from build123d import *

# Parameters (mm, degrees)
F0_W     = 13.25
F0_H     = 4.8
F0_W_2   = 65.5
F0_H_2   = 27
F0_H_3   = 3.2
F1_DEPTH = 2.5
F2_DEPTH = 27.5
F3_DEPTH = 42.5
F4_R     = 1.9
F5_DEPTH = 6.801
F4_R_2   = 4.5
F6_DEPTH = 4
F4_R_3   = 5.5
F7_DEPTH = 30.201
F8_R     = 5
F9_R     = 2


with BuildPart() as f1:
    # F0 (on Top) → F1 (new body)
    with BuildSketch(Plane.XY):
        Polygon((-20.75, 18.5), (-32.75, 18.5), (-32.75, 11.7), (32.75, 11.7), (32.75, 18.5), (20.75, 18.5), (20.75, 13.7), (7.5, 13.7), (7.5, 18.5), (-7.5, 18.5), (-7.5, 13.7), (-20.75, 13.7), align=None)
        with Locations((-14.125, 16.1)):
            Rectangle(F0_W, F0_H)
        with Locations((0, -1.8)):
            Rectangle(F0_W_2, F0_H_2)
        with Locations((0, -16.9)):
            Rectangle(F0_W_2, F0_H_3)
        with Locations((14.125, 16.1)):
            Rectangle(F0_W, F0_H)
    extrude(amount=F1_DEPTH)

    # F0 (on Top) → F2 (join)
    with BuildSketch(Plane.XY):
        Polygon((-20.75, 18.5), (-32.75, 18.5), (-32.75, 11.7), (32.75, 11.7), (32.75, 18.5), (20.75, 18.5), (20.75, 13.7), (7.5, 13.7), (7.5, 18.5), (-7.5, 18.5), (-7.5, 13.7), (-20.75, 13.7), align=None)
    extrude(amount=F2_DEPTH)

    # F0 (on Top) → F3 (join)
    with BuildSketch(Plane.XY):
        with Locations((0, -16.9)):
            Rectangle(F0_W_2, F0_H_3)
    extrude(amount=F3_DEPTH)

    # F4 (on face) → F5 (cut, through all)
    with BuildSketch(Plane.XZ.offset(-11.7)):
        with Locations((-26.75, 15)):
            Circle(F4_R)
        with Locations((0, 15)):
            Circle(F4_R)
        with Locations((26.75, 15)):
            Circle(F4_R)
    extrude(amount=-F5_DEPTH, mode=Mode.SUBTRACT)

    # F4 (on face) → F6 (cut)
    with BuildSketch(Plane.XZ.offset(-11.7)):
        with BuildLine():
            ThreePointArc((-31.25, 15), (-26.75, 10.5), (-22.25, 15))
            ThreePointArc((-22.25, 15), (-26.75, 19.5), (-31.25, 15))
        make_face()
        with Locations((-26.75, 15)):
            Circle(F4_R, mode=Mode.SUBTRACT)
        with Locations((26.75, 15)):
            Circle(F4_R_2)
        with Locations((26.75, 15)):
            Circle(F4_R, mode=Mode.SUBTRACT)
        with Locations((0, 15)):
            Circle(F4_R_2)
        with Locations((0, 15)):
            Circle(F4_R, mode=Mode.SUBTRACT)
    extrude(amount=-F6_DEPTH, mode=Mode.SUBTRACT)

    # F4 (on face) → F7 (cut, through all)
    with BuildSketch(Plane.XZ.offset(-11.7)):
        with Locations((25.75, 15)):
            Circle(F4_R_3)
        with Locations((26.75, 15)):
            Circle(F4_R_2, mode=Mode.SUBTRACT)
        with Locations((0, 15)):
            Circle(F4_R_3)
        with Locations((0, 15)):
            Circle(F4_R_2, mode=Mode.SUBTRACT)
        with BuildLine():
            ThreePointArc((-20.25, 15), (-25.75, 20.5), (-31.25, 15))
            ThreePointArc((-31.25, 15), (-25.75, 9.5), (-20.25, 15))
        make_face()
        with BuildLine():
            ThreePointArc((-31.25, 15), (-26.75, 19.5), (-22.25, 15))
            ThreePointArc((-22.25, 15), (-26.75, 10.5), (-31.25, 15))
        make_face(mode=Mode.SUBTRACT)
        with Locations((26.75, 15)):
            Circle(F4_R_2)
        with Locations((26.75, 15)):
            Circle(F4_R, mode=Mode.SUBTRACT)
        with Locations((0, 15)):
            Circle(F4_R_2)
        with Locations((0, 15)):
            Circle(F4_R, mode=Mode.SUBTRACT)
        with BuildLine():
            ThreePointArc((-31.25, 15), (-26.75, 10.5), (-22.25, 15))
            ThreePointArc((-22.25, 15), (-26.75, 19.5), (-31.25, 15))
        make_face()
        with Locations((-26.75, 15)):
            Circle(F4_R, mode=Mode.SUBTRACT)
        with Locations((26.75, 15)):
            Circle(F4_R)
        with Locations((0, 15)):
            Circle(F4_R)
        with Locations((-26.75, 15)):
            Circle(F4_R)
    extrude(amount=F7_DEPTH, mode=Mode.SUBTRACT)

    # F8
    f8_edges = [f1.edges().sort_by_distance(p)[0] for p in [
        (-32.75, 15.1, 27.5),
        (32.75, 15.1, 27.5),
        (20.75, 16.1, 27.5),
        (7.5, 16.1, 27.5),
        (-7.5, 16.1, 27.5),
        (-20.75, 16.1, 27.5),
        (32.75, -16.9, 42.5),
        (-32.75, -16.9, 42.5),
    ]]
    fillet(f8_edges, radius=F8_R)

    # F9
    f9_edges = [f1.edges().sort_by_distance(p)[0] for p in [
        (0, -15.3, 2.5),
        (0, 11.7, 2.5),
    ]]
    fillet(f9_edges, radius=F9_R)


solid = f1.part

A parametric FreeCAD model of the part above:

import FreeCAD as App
import Part
import Sketcher
from FreeCAD import Vector
Q = App.Units.Quantity


def edges_at(feature, points):
    """Names of the edges that pass closest to the given points."""
    edges = feature.Shape.Edges
    near = lambda p: min(range(len(edges)), key=lambda i: edges[i].distToShape(Part.Vertex(*p))[0])
    return sorted({f"Edge{near(p) + 1}" for p in points})

doc = App.newDocument("Part")
params = doc.addObject("Spreadsheet::Sheet", "Params")
for row, (alias, value) in enumerate([
    ("sketch1_height", "37 mm"),
    ("sketch1_width", "65.5 mm"),
    ("pad1_length", "2.5 mm"),
    ("sketch2_width", "12 mm"),
    ("sketch2_width2", "15 mm"),
    ("sketch2_width3", "65.5 mm"),
    ("sketch2_height", "6.8 mm"),
    ("sketch2_height2", "4.8 mm"),
    ("pad2_length", "27.5 mm"),
    ("sketch3_width", "65.5 mm"),
    ("sketch3_height", "3.2 mm"),
    ("pad3_length", "42.5 mm"),
    ("sketch4_diameter", "3.8 mm"),
    ("sketch5_diameter", "9 mm"),
    ("sketch5_diameter2", "3.8 mm"),
    ("pocket2_length", "4 mm"),
    ("sketch6_diameter", "11 mm"),
    ("fillet_radius", "5 mm"),
    ("fillet2_radius", "2 mm"),
], start=1):
    params.set(f"A{row}", alias)
    params.set(f"B{row}", "=" + value)
    params.setAlias(f"B{row}", alias)

body = doc.addObject("PartDesign::Body", "Body")

# Sketch on XY plane
sketch1 = body.newObject("Sketcher::SketchObject", "Sketch")
sketch1.AttachmentSupport = (doc.getObject("XY_Plane"), [""])
sketch1.MapMode = "FlatFace"
sketch1.addGeometry([
    Part.LineSegment(Vector(-33, 18, 0), Vector(-33, -18, 0)),
    Part.LineSegment(Vector(-33, -18, 0), Vector(33, -18, 0)),
    Part.LineSegment(Vector(33, -18, 0), Vector(33, 18, 0)),
    Part.LineSegment(Vector(33, 18, 0), Vector(-33, 18, 0)),
], False)
sketch1.addConstraint([
    Sketcher.Constraint("Coincident", 0, 2, 1, 1),
    Sketcher.Constraint("Coincident", 1, 2, 2, 1),
    Sketcher.Constraint("Coincident", 2, 2, 3, 1),
    Sketcher.Constraint("Coincident", 3, 2, 0, 1),
    Sketcher.Constraint("Vertical", 0),
    Sketcher.Constraint("Horizontal", 1),
    Sketcher.Constraint("Vertical", 2),
    Sketcher.Constraint("Horizontal", 3),
    Sketcher.Constraint("Symmetric", 0, 2, 2, 2, -1, 1),
    Sketcher.Constraint("DistanceY", 0, 2, 0, 1, Q("37 mm")),
    Sketcher.Constraint("DistanceX", 1, 1, 1, 2, Q("65.5 mm")),
])
sketch1.setExpression("Constraints[9]", "Params.sketch1_height")
sketch1.setExpression("Constraints[10]", "Params.sketch1_width")
pad1 = body.newObject("PartDesign::Pad", "Pad")
pad1.Profile = sketch1
pad1.setExpression("Length", "Params.pad1_length")

# Sketch on XY plane
sketch2 = body.newObject("Sketcher::SketchObject", "Sketch001")
sketch2.AttachmentSupport = (doc.getObject("XY_Plane"), [""])
sketch2.MapMode = "FlatFace"
sketch2.addGeometry([
    Part.LineSegment(Vector(-20.8, 18.5, 0), Vector(-32.8, 18.5, 0)),  # 0
    Part.LineSegment(Vector(-32.8, 18.5, 0), Vector(-32.8, 11.7, 0)),  # 1
    Part.LineSegment(Vector(-32.8, 11.7, 0), Vector(32.8, 11.7, 0)),  # 2
    Part.LineSegment(Vector(32.8, 11.7, 0), Vector(32.8, 18.5, 0)),  # 3
    Part.LineSegment(Vector(32.8, 18.5, 0), Vector(20.8, 18.5, 0)),  # 4
    Part.LineSegment(Vector(20.8, 18.5, 0), Vector(20.8, 13.7, 0)),  # 5
    Part.LineSegment(Vector(20.8, 13.7, 0), Vector(7.5, 13.7, 0)),  # 6
    Part.LineSegment(Vector(7.5, 13.7, 0), Vector(7.5, 18.5, 0)),  # 7
    Part.LineSegment(Vector(7.5, 18.5, 0), Vector(-7.5, 18.5, 0)),  # 8
    Part.LineSegment(Vector(-7.5, 18.5, 0), Vector(-7.5, 13.7, 0)),  # 9
    Part.LineSegment(Vector(-7.5, 13.7, 0), Vector(-20.8, 13.7, 0)),  # 10
    Part.LineSegment(Vector(-20.8, 13.7, 0), Vector(-20.8, 18.5, 0)),  # 11
], False)
sketch2.addConstraint([
    Sketcher.Constraint("Coincident", 0, 2, 1, 1),
    Sketcher.Constraint("Coincident", 1, 2, 2, 1),
    Sketcher.Constraint("Coincident", 2, 2, 3, 1),
    Sketcher.Constraint("Coincident", 3, 2, 4, 1),
    Sketcher.Constraint("Coincident", 4, 2, 5, 1),
    Sketcher.Constraint("Coincident", 5, 2, 6, 1),
    Sketcher.Constraint("Coincident", 6, 2, 7, 1),
    Sketcher.Constraint("Coincident", 7, 2, 8, 1),
    Sketcher.Constraint("Coincident", 8, 2, 9, 1),
    Sketcher.Constraint("Coincident", 9, 2, 10, 1),
    Sketcher.Constraint("Coincident", 10, 2, 11, 1),
    Sketcher.Constraint("Coincident", 11, 2, 0, 1),
    Sketcher.Constraint("Horizontal", 0),
    Sketcher.Constraint("Vertical", 1),
    Sketcher.Constraint("Horizontal", 2),
    Sketcher.Constraint("Vertical", 3),
    Sketcher.Constraint("Horizontal", 4),
    Sketcher.Constraint("Vertical", 5),
    Sketcher.Constraint("Horizontal", 6),
    Sketcher.Constraint("Vertical", 7),
    Sketcher.Constraint("Horizontal", 8),
    Sketcher.Constraint("Vertical", 9),
    Sketcher.Constraint("Horizontal", 10),
    Sketcher.Constraint("Vertical", 11),
    Sketcher.Constraint("Symmetric", 0, 2, 3, 2, -2),
    Sketcher.Constraint("Symmetric", 6, 2, 9, 2, -2),
    Sketcher.Constraint("Horizontal", 4, 2, 7, 2),
    Sketcher.Constraint("Equal", 0, 4),
    Sketcher.Constraint("DistanceX", 0, 2, 0, 1, Q("12 mm")),
    Sketcher.Constraint("DistanceX", 8, 2, 8, 1, Q("15 mm")),
    Sketcher.Constraint("DistanceX", 2, 1, 2, 2, Q("65.5 mm")),
    Sketcher.Constraint("DistanceY", 1, 2, 1, 1, Q("6.8 mm")),
    Sketcher.Constraint("DistanceY", 5, 2, 5, 1, Q("4.8 mm")),
    Sketcher.Constraint("DistanceY", -1, 1, 0, 2, Q("18.5 mm")),
])
sketch2.setExpression("Constraints[28]", "Params.sketch2_width")
sketch2.setExpression("Constraints[29]", "Params.sketch2_width2")
sketch2.setExpression("Constraints[30]", "Params.sketch2_width3")
sketch2.setExpression("Constraints[31]", "Params.sketch2_height")
sketch2.setExpression("Constraints[32]", "Params.sketch2_height2")
pad2 = body.newObject("PartDesign::Pad", "Pad001")
pad2.Profile = sketch2
pad2.setExpression("Length", "Params.pad2_length")

# Sketch on XY plane
sketch3 = body.newObject("Sketcher::SketchObject", "Sketch002")
sketch3.AttachmentSupport = (doc.getObject("XY_Plane"), [""])
sketch3.MapMode = "FlatFace"
sketch3.addGeometry([
    Part.LineSegment(Vector(-32.8, -15.3, 0), Vector(-32.8, -18.5, 0)),
    Part.LineSegment(Vector(-32.8, -18.5, 0), Vector(32.8, -18.5, 0)),
    Part.LineSegment(Vector(32.8, -18.5, 0), Vector(32.8, -15.3, 0)),
    Part.LineSegment(Vector(32.8, -15.3, 0), Vector(-32.8, -15.3, 0)),
], False)
sketch3.addConstraint([
    Sketcher.Constraint("Coincident", 0, 2, 1, 1),
    Sketcher.Constraint("Coincident", 1, 2, 2, 1),
    Sketcher.Constraint("Coincident", 2, 2, 3, 1),
    Sketcher.Constraint("Coincident", 3, 2, 0, 1),
    Sketcher.Constraint("Vertical", 0),
    Sketcher.Constraint("Horizontal", 1),
    Sketcher.Constraint("Vertical", 2),
    Sketcher.Constraint("Horizontal", 3),
    Sketcher.Constraint("DistanceX", 1, 1, 1, 2, Q("65.5 mm")),
    Sketcher.Constraint("DistanceY", 0, 2, 0, 1, Q("3.2 mm")),
    Sketcher.Constraint("DistanceY", 0, 2, -1, 1, Q("18.5 mm")),
    Sketcher.Constraint("DistanceX", 0, 2, -1, 1, Q("32.75 mm")),
])
sketch3.setExpression("Constraints[8]", "Params.sketch3_width")
sketch3.setExpression("Constraints[9]", "Params.sketch3_height")
pad3 = body.newObject("PartDesign::Pad", "Pad002")
pad3.Profile = sketch3
pad3.setExpression("Length", "Params.pad3_length")

# Sketch on XZ plane
sketch4 = body.newObject("Sketcher::SketchObject", "Sketch003")
sketch4.AttachmentSupport = (doc.getObject("XZ_Plane"), [""])
sketch4.MapMode = "FlatFace"
sketch4.AttachmentOffset = App.Placement(Vector(0, 0, -11.7), App.Rotation())
sketch4.addGeometry([
    Part.Circle(Vector(-26.8, 15, 0), Vector(0, 0, 1), 1.9),
    Part.Circle(Vector(0, 15, 0), Vector(0, 0, 1), 1.9),
    Part.Circle(Vector(26.8, 15, 0), Vector(0, 0, 1), 1.9),
], False)
sketch4.addConstraint([
    Sketcher.Constraint("Equal", 0, 1),
    Sketcher.Constraint("Equal", 1, 2),
    Sketcher.Constraint("Symmetric", 0, 3, 2, 3, -2),
    Sketcher.Constraint("PointOnObject", 1, 3, -2),
    Sketcher.Constraint("Horizontal", 0, 3, 1, 3),
    Sketcher.Constraint("Diameter", 0, Q("3.8 mm")),
    Sketcher.Constraint("DistanceY", -1, 1, 0, 3, Q("15 mm")),
    Sketcher.Constraint("DistanceX", 0, 3, 2, 3, Q("53.5 mm")),
])
sketch4.setExpression("Constraints[5]", "Params.sketch4_diameter")
pocket1 = body.newObject("PartDesign::Pocket", "Pocket")
pocket1.Profile = sketch4
pocket1.Type = "ThroughAll"

# Sketch on XZ plane
sketch5 = body.newObject("Sketcher::SketchObject", "Sketch004")
sketch5.AttachmentSupport = (doc.getObject("XZ_Plane"), [""])
sketch5.MapMode = "FlatFace"
sketch5.AttachmentOffset = App.Placement(Vector(0, 0, -11.7), App.Rotation())
sketch5.addGeometry([
    Part.Circle(Vector(-26.8, 15, 0), Vector(0, 0, 1), 4.5),  # 0
    Part.Circle(Vector(-26.8, 15, 0), Vector(0, 0, 1), 1.9),  # 1
    Part.Circle(Vector(26.8, 15, 0), Vector(0, 0, 1), 4.5),  # 2
    Part.Circle(Vector(26.8, 15, 0), Vector(0, 0, 1), 1.9),  # 3
    Part.Circle(Vector(0, 15, 0), Vector(0, 0, 1), 4.5),  # 4
    Part.Circle(Vector(0, 15, 0), Vector(0, 0, 1), 1.9),  # 5
], False)
sketch5.addConstraint([
    Sketcher.Constraint("Coincident", 1, 3, 0, 3),
    Sketcher.Constraint("Coincident", 3, 3, 2, 3),
    Sketcher.Constraint("Coincident", 5, 3, 4, 3),
    Sketcher.Constraint("Equal", 0, 2),
    Sketcher.Constraint("Equal", 1, 3),
    Sketcher.Constraint("Equal", 2, 4),
    Sketcher.Constraint("Equal", 3, 5),
    Sketcher.Constraint("Symmetric", 0, 3, 2, 3, -2),
    Sketcher.Constraint("PointOnObject", 4, 3, -2),
    Sketcher.Constraint("Horizontal", 3, 3, 4, 3),
    Sketcher.Constraint("Diameter", 0, Q("9 mm")),
    Sketcher.Constraint("Diameter", 1, Q("3.8 mm")),
    Sketcher.Constraint("DistanceY", -1, 1, 0, 3, Q("15 mm")),
    Sketcher.Constraint("DistanceX", 0, 3, 2, 3, Q("53.5 mm")),
])
sketch5.setExpression("Constraints[10]", "Params.sketch5_diameter")
sketch5.setExpression("Constraints[11]", "Params.sketch5_diameter2")
pocket2 = body.newObject("PartDesign::Pocket", "Pocket001")
pocket2.Profile = sketch5
pocket2.setExpression("Length", "Params.pocket2_length")

# Sketch on XZ plane
sketch6 = body.newObject("Sketcher::SketchObject", "Sketch005")
sketch6.AttachmentSupport = (doc.getObject("XZ_Plane"), [""])
sketch6.MapMode = "FlatFace"
sketch6.AttachmentOffset = App.Placement(Vector(0, 0, -11.7), App.Rotation())
sketch6.addGeometry([
    Part.Circle(Vector(26, 15, 0), Vector(0, 0, 1), 6),
    Part.Circle(Vector(0, 15, 0), Vector(0, 0, 1), 6),
    Part.Circle(Vector(-26, 15, 0), Vector(0, 0, 1), 6),
], False)
sketch6.addConstraint([
    Sketcher.Constraint("Equal", 0, 1),
    Sketcher.Constraint("Equal", 1, 2),
    Sketcher.Constraint("Symmetric", 0, 3, 2, 3, -2),
    Sketcher.Constraint("PointOnObject", 1, 3, -2),
    Sketcher.Constraint("Horizontal", 0, 3, 1, 3),
    Sketcher.Constraint("Diameter", 0, Q("11 mm")),
    Sketcher.Constraint("DistanceY", -1, 1, 0, 3, Q("15 mm")),
    Sketcher.Constraint("DistanceX", 2, 3, 0, 3, Q("51.5 mm")),
])
sketch6.setExpression("Constraints[5]", "Params.sketch6_diameter")
pocket3 = body.newObject("PartDesign::Pocket", "Pocket002")
pocket3.Profile = sketch6
pocket3.Type = "ThroughAll"
pocket3.Reversed = True
doc.recompute()

fillet = body.newObject("PartDesign::Fillet", "Fillet")
fillet.Base = (pocket3, edges_at(pocket3, [
    (-32.75, 15.1, 27.5),
    (32.75, 15.1, 27.5),
    (20.75, 16.1, 27.5),
    (7.5, 16.1, 27.5),
    (-7.5, 16.1, 27.5),
    (-20.75, 16.1, 27.5),
    (32.75, -16.9, 42.5),
    (-32.75, -16.9, 42.5),
]))
fillet.setExpression("Radius", "Params.fillet_radius")
doc.recompute()

fillet2 = body.newObject("PartDesign::Fillet", "Fillet001")
fillet2.Base = (fillet, edges_at(fillet, [(0, -15.3, 2.5), (0, 11.7, 2.5)]))
fillet2.setExpression("Radius", "Params.fillet2_radius")

doc.recompute()
